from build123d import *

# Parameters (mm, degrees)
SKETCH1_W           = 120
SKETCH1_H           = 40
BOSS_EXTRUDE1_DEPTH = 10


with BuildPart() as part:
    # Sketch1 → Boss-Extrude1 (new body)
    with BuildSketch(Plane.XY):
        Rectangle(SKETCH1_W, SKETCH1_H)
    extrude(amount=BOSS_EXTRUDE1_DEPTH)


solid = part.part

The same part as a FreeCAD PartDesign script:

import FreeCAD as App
import Part
import Sketcher
Q = App.Units.Quantity


def add_polygon(sketch, points):
    """Adds a closed chain of lines whose ends are joined by coincident constraints."""
    first, n = sketch.GeometryCount, len(points)
    for a, b in zip(points, points[1:] + points[:1]):
        sketch.addGeometry(Part.LineSegment(App.Vector(*a, 0), App.Vector(*b, 0)), False)
    for i in range(n):
        sketch.addConstraint(Sketcher.Constraint("Coincident", first + i, 2, first + (i + 1) % n, 1))

doc = App.newDocument("Part")
body = doc.addObject("PartDesign::Body", "Body")

# Sketch on XY plane
sketch1 = body.newObject("Sketcher::SketchObject", "Sketch")
sketch1.AttachmentSupport = (doc.getObject("XY_Plane"), [""])
sketch1.MapMode = "FlatFace"
add_polygon(sketch1, [(-60, 20), (-60, -20), (60, -20), (60, 20)])  # lines 0-3
sketch1.addConstraint(Sketcher.Constraint("Vertical", 0))
sketch1.addConstraint(Sketcher.Constraint("Horizontal", 1))
sketch1.addConstraint(Sketcher.Constraint("Vertical", 2))
sketch1.addConstraint(Sketcher.Constraint("Horizontal", 3))
sketch1.addConstraint(Sketcher.Constraint("Symmetric", 0, 2, 2, 2, -1, 1))
sketch1.addConstraint(Sketcher.Constraint("DistanceX", 1, 1, 1, 2, Q("120 mm")))
sketch1.addConstraint(Sketcher.Constraint("DistanceY", 0, 2, 0, 1, Q("40 mm")))
pad1 = body.newObject("PartDesign::Pad", "Pad")
pad1.Profile = sketch1
pad1.Length = 10

doc.recompute()
